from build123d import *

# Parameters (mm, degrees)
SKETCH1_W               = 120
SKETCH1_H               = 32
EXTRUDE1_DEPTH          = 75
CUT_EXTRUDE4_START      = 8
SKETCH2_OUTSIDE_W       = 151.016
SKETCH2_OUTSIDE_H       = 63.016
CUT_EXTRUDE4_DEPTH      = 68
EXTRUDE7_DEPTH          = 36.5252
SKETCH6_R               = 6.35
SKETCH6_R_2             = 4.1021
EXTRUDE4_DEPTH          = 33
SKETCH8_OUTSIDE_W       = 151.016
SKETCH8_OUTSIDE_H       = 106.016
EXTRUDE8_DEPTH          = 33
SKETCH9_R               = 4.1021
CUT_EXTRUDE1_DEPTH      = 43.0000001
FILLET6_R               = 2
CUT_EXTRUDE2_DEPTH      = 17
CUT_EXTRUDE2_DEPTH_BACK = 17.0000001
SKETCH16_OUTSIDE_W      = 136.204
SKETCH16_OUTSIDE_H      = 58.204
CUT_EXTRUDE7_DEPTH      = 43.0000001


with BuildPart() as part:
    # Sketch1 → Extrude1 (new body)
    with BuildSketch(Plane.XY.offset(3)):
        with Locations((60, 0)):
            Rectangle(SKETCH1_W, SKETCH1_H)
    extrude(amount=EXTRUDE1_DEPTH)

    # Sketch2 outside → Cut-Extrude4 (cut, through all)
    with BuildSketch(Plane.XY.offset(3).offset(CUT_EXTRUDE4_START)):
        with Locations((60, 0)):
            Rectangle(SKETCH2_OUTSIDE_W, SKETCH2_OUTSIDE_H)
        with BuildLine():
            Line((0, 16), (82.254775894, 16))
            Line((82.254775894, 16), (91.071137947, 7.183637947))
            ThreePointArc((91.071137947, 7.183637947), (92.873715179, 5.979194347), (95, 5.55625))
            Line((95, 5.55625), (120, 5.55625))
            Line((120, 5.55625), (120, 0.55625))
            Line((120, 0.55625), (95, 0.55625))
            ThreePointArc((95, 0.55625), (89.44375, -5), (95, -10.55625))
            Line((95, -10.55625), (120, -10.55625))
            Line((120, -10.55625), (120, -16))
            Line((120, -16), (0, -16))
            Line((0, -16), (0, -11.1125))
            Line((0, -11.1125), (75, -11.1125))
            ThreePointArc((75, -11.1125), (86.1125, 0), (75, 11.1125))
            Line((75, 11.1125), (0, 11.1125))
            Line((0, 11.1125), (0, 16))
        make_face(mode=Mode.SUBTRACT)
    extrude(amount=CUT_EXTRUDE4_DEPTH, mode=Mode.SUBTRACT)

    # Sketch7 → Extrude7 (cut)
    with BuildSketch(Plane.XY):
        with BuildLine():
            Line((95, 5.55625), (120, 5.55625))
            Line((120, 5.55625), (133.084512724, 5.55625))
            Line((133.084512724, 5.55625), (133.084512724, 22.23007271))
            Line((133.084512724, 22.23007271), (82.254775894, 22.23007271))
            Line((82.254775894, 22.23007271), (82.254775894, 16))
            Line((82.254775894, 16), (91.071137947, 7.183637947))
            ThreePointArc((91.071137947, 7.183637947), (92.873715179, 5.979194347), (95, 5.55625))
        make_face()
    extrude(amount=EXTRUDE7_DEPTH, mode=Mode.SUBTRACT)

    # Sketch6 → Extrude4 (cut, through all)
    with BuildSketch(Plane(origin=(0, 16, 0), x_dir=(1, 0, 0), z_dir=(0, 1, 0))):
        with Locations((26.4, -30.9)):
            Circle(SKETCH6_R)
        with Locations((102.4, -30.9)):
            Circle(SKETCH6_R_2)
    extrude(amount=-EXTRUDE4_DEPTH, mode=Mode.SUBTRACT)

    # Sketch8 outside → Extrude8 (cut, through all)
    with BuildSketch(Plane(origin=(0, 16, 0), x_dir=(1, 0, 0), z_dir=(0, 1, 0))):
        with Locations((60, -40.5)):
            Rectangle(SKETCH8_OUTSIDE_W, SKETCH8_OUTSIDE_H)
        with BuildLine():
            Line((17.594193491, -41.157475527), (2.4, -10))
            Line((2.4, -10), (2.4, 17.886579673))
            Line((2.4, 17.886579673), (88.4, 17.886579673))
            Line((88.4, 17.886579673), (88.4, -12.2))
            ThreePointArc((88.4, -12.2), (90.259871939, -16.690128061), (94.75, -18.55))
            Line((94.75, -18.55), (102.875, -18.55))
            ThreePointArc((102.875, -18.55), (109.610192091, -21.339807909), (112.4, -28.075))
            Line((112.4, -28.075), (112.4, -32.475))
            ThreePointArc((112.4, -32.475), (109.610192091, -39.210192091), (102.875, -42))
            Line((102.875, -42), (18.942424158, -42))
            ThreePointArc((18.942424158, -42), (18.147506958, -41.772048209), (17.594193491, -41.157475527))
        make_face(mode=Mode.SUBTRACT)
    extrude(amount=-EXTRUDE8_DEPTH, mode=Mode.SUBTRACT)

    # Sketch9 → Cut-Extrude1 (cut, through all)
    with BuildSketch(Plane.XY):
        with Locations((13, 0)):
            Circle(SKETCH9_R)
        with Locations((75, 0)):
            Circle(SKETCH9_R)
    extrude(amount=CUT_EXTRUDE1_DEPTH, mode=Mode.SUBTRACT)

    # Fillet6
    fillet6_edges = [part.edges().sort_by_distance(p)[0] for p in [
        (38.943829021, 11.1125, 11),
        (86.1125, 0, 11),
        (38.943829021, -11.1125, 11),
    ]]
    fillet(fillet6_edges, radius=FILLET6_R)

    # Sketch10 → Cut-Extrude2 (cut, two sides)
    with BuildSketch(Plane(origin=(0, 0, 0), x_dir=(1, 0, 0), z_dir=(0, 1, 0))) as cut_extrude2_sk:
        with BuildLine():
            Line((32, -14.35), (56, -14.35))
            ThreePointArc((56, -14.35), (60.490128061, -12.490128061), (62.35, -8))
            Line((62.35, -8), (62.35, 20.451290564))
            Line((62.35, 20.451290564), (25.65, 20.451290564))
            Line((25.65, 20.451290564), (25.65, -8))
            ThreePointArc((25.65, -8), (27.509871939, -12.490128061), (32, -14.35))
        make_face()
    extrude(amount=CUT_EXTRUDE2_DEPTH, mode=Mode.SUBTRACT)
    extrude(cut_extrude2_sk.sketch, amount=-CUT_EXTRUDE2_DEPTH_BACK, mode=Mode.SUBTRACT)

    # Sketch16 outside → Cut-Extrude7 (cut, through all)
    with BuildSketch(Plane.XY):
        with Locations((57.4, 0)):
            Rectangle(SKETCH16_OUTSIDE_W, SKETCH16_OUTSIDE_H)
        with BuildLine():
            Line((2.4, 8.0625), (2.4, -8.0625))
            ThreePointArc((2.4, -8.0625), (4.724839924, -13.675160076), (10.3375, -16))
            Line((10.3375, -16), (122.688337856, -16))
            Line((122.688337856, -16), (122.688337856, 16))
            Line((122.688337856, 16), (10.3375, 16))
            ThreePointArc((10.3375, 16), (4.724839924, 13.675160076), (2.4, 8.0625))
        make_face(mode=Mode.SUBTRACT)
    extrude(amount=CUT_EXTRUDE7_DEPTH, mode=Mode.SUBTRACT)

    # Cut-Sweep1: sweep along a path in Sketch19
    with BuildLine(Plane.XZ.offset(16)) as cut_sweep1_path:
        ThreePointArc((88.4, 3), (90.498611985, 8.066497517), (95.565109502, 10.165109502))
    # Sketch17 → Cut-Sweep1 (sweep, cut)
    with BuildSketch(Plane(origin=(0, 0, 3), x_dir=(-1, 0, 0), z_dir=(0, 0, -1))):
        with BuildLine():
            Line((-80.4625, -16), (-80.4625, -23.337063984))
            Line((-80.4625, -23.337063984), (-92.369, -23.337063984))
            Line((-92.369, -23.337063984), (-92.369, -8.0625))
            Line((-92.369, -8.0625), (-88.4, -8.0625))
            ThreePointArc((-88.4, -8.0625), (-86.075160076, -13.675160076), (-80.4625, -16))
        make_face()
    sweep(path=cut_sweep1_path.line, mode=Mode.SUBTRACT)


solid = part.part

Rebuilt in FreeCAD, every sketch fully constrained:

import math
import FreeCAD as App
import Part
import Sketcher
Q = App.Units.Quantity


def edges_at(feature, points):
    """Names of the edges that pass closest to the given points."""
    edges = feature.Shape.Edges
    near = lambda p: min(range(len(edges)), key=lambda i: edges[i].distToShape(Part.Vertex(*p))[0])
    return sorted({f"Edge{near(p) + 1}" for p in points})

doc = App.newDocument("Part")
body = doc.addObject("PartDesign::Body", "Body")

sketch1 = doc.addObject("Sketcher::SketchObject", "Sketch")
body.addObject(sketch1)
sketch1.AttachmentSupport = (doc.XY_Plane, [""])
sketch1.MapMode = "FlatFace"
sketch1.AttachmentOffset = App.Placement(App.Vector(0, 0, 3), App.Rotation())
sketch1.addGeometry([
    Part.LineSegment(App.Vector(0, 16, 0), App.Vector(0, -16, 0)),
    Part.LineSegment(App.Vector(0, -16, 0), App.Vector(120, -16, 0)),
    Part.LineSegment(App.Vector(120, -16, 0), App.Vector(120, 16, 0)),
    Part.LineSegment(App.Vector(120, 16, 0), App.Vector(0, 16, 0)),
], False)
sketch1.addConstraint([
    Sketcher.Constraint("Coincident", 0, 2, 1, 1),
    Sketcher.Constraint("Coincident", 1, 2, 2, 1),
    Sketcher.Constraint("Coincident", 2, 2, 3, 1),
    Sketcher.Constraint("Coincident", 3, 2, 0, 1),
    Sketcher.Constraint("Vertical", 0),
    Sketcher.Constraint("Horizontal", 1),
    Sketcher.Constraint("Vertical", 2),
    Sketcher.Constraint("Horizontal", 3),
    Sketcher.Constraint("Symmetric", 0, 2, 3, 2, -1, 1),
    Sketcher.Constraint("DistanceX", 1, 1, 1, 2, Q("120 mm")),
    Sketcher.Constraint("DistanceY", 0, 2, 0, 1, Q("32 mm")),
])
pad1 = doc.addObject("PartDesign::Pad", "Pad")
body.addObject(pad1)
pad1.Profile = sketch1
pad1.Length = 75

sketch2 = doc.addObject("Sketcher::SketchObject", "Sketch001")
body.addObject(sketch2)
sketch2.AttachmentSupport = (doc.XY_Plane, [""])
sketch2.MapMode = "FlatFace"
sketch2.AttachmentOffset = App.Placement(App.Vector(0, 0, 11), App.Rotation())
sketch2.addGeometry([
    Part.LineSegment(App.Vector(-15.5, 31.5, 0), App.Vector(-15.5, -31.5, 0)),
    Part.LineSegment(App.Vector(-15.5, -31.5, 0), App.Vector(135.5, -31.5, 0)),
    Part.LineSegment(App.Vector(135.5, -31.5, 0), App.Vector(135.5, 31.5, 0)),
    Part.LineSegment(App.Vector(135.5, 31.5, 0), App.Vector(-15.5, 31.5, 0)),
    Part.LineSegment(App.Vector(0, 11.1, 0), App.Vector(0, 16, 0)),
    Part.LineSegment(App.Vector(0, 16, 0), App.Vector(82.3, 16, 0)),
    Part.LineSegment(App.Vector(82.3, 16, 0), App.Vector(91.1, 7.2, 0)),
    Part.ArcOfCircle(Part.Circle(App.Vector(95, 11.1, 0), App.Vector(0, 0, 1), 5.6), math.radians(-135), math.radians(-90)),
    Part.LineSegment(App.Vector(95, 5.6, 0), App.Vector(120, 5.6, 0)),
    Part.LineSegment(App.Vector(120, 5.6, 0), App.Vector(120, 0.6, 0)),
    Part.LineSegment(App.Vector(120, 0.6, 0), App.Vector(95, 0.6, 0)),
    Part.ArcOfCircle(Part.Circle(App.Vector(95, -5, 0), App.Vector(0, 0, 1), 5.6), math.radians(90), math.radians(270)),
    Part.LineSegment(App.Vector(95, -10.6, 0), App.Vector(120, -10.6, 0)),
    Part.LineSegment(App.Vector(120, -10.6, 0), App.Vector(120, -16, 0)),
    Part.LineSegment(App.Vector(120, -16, 0), App.Vector(0, -16, 0)),
    Part.LineSegment(App.Vector(0, -16, 0), App.Vector(0, -11.1, 0)),
    Part.LineSegment(App.Vector(0, -11.1, 0), App.Vector(75, -11.1, 0)),
    Part.ArcOfCircle(Part.Circle(App.Vector(75, 0, 0), App.Vector(0, 0, 1), 11.1), math.radians(-90), math.radians(90)),
    Part.LineSegment(App.Vector(75, 11.1, 0), App.Vector(0, 11.1, 0)),
], False)
sketch2.addConstraint([
    Sketcher.Constraint("Coincident", 0, 2, 1, 1),
    Sketcher.Constraint("Coincident", 1, 2, 2, 1),
    Sketcher.Constraint("Coincident", 2, 2, 3, 1),
    Sketcher.Constraint("Coincident", 3, 2, 0, 1),
    Sketcher.Constraint("Coincident", 4, 2, 5, 1),
    Sketcher.Constraint("Coincident", 5, 2, 6, 1),
    Sketcher.Constraint("Tangent", 6, 2, 7, 1),
    Sketcher.Constraint("Tangent", 7, 2, 8, 1),
    Sketcher.Constraint("Coincident", 8, 2, 9, 1),
    Sketcher.Constraint("Coincident", 9, 2, 10, 1),
    Sketcher.Constraint("Tangent", 10, 2, 11, 1),
    Sketcher.Constraint("Tangent", 11, 2, 12, 1),
    Sketcher.Constraint("Coincident", 12, 2, 13, 1),
    Sketcher.Constraint("Coincident", 13, 2, 14, 1),
    Sketcher.Constraint("Coincident", 14, 2, 15, 1),
    Sketcher.Constraint("Coincident", 15, 2, 16, 1),
    Sketcher.Constraint("Tangent", 16, 2, 17, 1),
    Sketcher.Constraint("Tangent", 17, 2, 18, 1),
    Sketcher.Constraint("Coincident", 18, 2, 4, 1),
    Sketcher.Constraint("Vertical", 0),
    Sketcher.Constraint("Horizontal", 1),
    Sketcher.Constraint("Vertical", 2),
    Sketcher.Constraint("Horizontal", 3),
    Sketcher.Constraint("Vertical", 4),
    Sketcher.Constraint("Horizontal", 5),
    Sketcher.Constraint("Horizontal", 8),
    Sketcher.Constraint("Vertical", 9),
    Sketcher.Constraint("Horizontal", 10),
    Sketcher.Constraint("Horizontal", 12),
    Sketcher.Constraint("Vertical", 13),
    Sketcher.Constraint("Horizontal", 14),
    Sketcher.Constraint("Vertical", 15),
    Sketcher.Constraint("Horizontal", 16),
    Sketcher.Constraint("Horizontal", 18),
    Sketcher.Constraint("Equal", 7, 11),
    Sketcher.Constraint("Symmetric", 4, 2, 14, 2, -1, 1),
    Sketcher.Constraint("Symmetric", 15, 2, 18, 2, -1),
    Sketcher.Constraint("Horizontal", 7, 3, 17, 2),
    Sketcher.Constraint("Vertical", 7, 3, 11, 3),
    Sketcher.Constraint("Vertical", 9, 2, 12, 2),
    Sketcher.Constraint("DistanceX", 8, 1, 8, 2, Q("25 mm")),
    Sketcher.Constraint("DistanceX", 14, 2, 14, 1, Q("120 mm")),
    Sketcher.Constraint("DistanceX", 16, 1, 16, 2, Q("75 mm")),
    Sketcher.Constraint("DistanceY", 9, 2, 9, 1, Q("5 mm")),
    Sketcher.Constraint("Angle", 6, Q("-45 deg")),
    Sketcher.Constraint("DistanceY", 11, 3, -1, 1, Q("5 mm")),
    Sketcher.Constraint("DistanceY", -1, 1, 4, 2, Q("16 mm")),
    Sketcher.Constraint("Radius", 17, Q("11.1125 mm")),
    Sketcher.Constraint("DistanceX", 1, 1, 1, 2, Q("151.016 mm")),
    Sketcher.Constraint("DistanceY", 0, 2, 0, 1, Q("63.016 mm")),
    Sketcher.Constraint("DistanceX", 0, 2, -1, 1, Q("15.508 mm")),
    Sketcher.Constraint("DistanceY", 0, 2, -1, 1, Q("31.508 mm")),
])
pocket1 = doc.addObject("PartDesign::Pocket", "Pocket")
body.addObject(pocket1)
pocket1.Profile = sketch2
pocket1.Type = "ThroughAll"
pocket1.Reversed = True

sketch3 = doc.addObject("Sketcher::SketchObject", "Sketch002")
body.addObject(sketch3)
sketch3.AttachmentSupport = (doc.XY_Plane, [""])
sketch3.MapMode = "FlatFace"
sketch3.addGeometry([
    Part.LineSegment(App.Vector(95, 5.6, 0), App.Vector(133.1, 5.6, 0)),
    Part.LineSegment(App.Vector(133.1, 5.6, 0), App.Vector(133.1, 22.2, 0)),
    Part.LineSegment(App.Vector(133.1, 22.2, 0), App.Vector(82.3, 22.2, 0)),
    Part.LineSegment(App.Vector(82.3, 22.2, 0), App.Vector(82.3, 16, 0)),
    Part.LineSegment(App.Vector(82.3, 16, 0), App.Vector(91.1, 7.2, 0)),
    Part.ArcOfCircle(Part.Circle(App.Vector(95, 11.1, 0), App.Vector(0, 0, 1), 5.6), math.radians(-135), math.radians(-90)),
], False)
sketch3.addConstraint([
    Sketcher.Constraint("Coincident", 0, 2, 1, 1),
    Sketcher.Constraint("Coincident", 1, 2, 2, 1),
    Sketcher.Constraint("Coincident", 2, 2, 3, 1),
    Sketcher.Constraint("Coincident", 3, 2, 4, 1),
    Sketcher.Constraint("Tangent", 4, 2, 5, 1),
    Sketcher.Constraint("Tangent", 5, 2, 0, 1),
    Sketcher.Constraint("Horizontal", 0),
    Sketcher.Constraint("Vertical", 1),
    Sketcher.Constraint("Horizontal", 2),
    Sketcher.Constraint("Vertical", 3),
    Sketcher.Constraint("Angle", 4, Q("-45 deg")),
    Sketcher.Constraint("DistanceX", -1, 1, 5, 3, Q("95 mm")),
    Sketcher.Constraint("DistanceY", -1, 1, 3, 2, Q("16 mm")),
    Sketcher.Constraint("Radius", 5, Q("5.55625 mm")),
    Sketcher.Constraint("DistanceY", -1, 1, 5, 3, Q("11.1125 mm")),
    Sketcher.Constraint("DistanceX", 0, 1, 0, 2, Q("38.084513 mm")),
    Sketcher.Constraint("DistanceY", 1, 1, 1, 2, Q("16.673823 mm")),
])
pocket2 = doc.addObject("PartDesign::Pocket", "Pocket001")
body.addObject(pocket2)
pocket2.Profile = sketch3
pocket2.Length = 36.5252
pocket2.Reversed = True

sketch4 = doc.addObject("Sketcher::SketchObject", "Sketch003")
body.addObject(sketch4)
sketch4.AttachmentSupport = (doc.XZ_Plane, [""])
sketch4.MapMode = "FlatFace"
sketch4.AttachmentOffset = App.Placement(App.Vector(0, 0, -16), App.Rotation())
sketch4.addGeometry([
    Part.Circle(App.Vector(26.4, 30.9, 0), App.Vector(0, 0, 1), 6.3),
    Part.Circle(App.Vector(102.4, 30.9, 0), App.Vector(0, 0, 1), 4.1),
], False)
sketch4.addConstraint([
    Sketcher.Constraint("Horizontal", 0, 3, 1, 3),
    Sketcher.Constraint("Diameter", 0, Q("12.7 mm")),
    Sketcher.Constraint("DistanceX", 0, 3, 1, 3, Q("76 mm")),
    Sketcher.Constraint("Diameter", 1, Q("8.2042 mm")),
    Sketcher.Constraint("DistanceX", -1, 1, 0, 3, Q("26.4 mm")),
    Sketcher.Constraint("DistanceY", -1, 1, 0, 3, Q("30.9 mm")),
])
pocket3 = doc.addObject("PartDesign::Pocket", "Pocket002")
body.addObject(pocket3)
pocket3.Profile = sketch4
pocket3.Type = "ThroughAll"
pocket3.Reversed = True

sketch5 = doc.addObject("Sketcher::SketchObject", "Sketch004")
body.addObject(sketch5)
sketch5.AttachmentSupport = (doc.XZ_Plane, [""])
sketch5.MapMode = "FlatFace"
sketch5.AttachmentOffset = App.Placement(App.Vector(0, 0, -16), App.Rotation())
sketch5.addGeometry([
    Part.LineSegment(App.Vector(-15.5, -12.5, 0), App.Vector(-15.5, 93.5, 0)),
    Part.LineSegment(App.Vector(-15.5, 93.5, 0), App.Vector(135.5, 93.5, 0)),
    Part.LineSegment(App.Vector(135.5, 93.5, 0), App.Vector(135.5, -12.5, 0)),
    Part.LineSegment(App.Vector(135.5, -12.5, 0), App.Vector(88.4, -12.5, 0)),
    Part.LineSegment(App.Vector(88.4, -12.5, 0), App.Vector(88.4, 12.2, 0)),
    Part.ArcOfCircle(Part.Circle(App.Vector(94.7, 12.2, 0), App.Vector(0, 0, 1), 6.3), math.radians(90), math.radians(180)),
    Part.LineSegment(App.Vector(94.8, 18.6, 0), App.Vector(102.9, 18.6, 0)),
    Part.ArcOfCircle(Part.Circle(App.Vector(102.9, 28.1, 0), App.Vector(0, 0, 1), 9.5), math.radians(-90), math.radians(0)),
    Part.LineSegment(App.Vector(112.4, 28.1, 0), App.Vector(112.4, 32.5, 0)),
    Part.ArcOfCircle(Part.Circle(App.Vector(102.9, 32.5, 0), App.Vector(0, 0, 1), 9.5), math.radians(0), math.radians(90)),
    Part.LineSegment(App.Vector(102.9, 42, 0), App.Vector(18.9, 42, 0)),
    Part.ArcOfCircle(Part.Circle(App.Vector(18.9, 40.5, 0), App.Vector(0, 0, 1), 1.5), math.radians(90), math.radians(154)),
    Part.LineSegment(App.Vector(17.6, 41.2, 0), App.Vector(2.4, 10, 0)),
    Part.LineSegment(App.Vector(2.4, 10, 0), App.Vector(2.4, -12.5, 0)),
    Part.LineSegment(App.Vector(2.4, -12.5, 0), App.Vector(-15.5, -12.5, 0)),
], False)
sketch5.addConstraint([
    Sketcher.Constraint("Coincident", 0, 2, 1, 1),
    Sketcher.Constraint("Coincident", 1, 2, 2, 1),
    Sketcher.Constraint("Coincident", 2, 2, 3, 1),
    Sketcher.Constraint("Coincident", 3, 2, 4, 1),
    Sketcher.Constraint("Tangent", 4, 2, 5, 2),
    Sketcher.Constraint("Tangent", 5, 1, 6, 1),
    Sketcher.Constraint("Tangent", 6, 2, 7, 1),
    Sketcher.Constraint("Tangent", 7, 2, 8, 1),
    Sketcher.Constraint("Tangent", 8, 2, 9, 1),
    Sketcher.Constraint("Tangent", 9, 2, 10, 1),
    Sketcher.Constraint("Tangent", 10, 2, 11, 1),
    Sketcher.Constraint("Tangent", 11, 2, 12, 1),
    Sketcher.Constraint("Coincident", 12, 2, 13, 1),
    Sketcher.Constraint("Coincident", 13, 2, 14, 1),
    Sketcher.Constraint("Coincident", 14, 2, 0, 1),
    Sketcher.Constraint("Vertical", 0),
    Sketcher.Constraint("Horizontal", 1),
    Sketcher.Constraint("Vertical", 2),
    Sketcher.Constraint("Horizontal", 3),
    Sketcher.Constraint("Vertical", 4),
    Sketcher.Constraint("Horizontal", 6),
    Sketcher.Constraint("Vertical", 8),
    Sketcher.Constraint("Horizontal", 10),
    Sketcher.Constraint("Vertical", 13),
    Sketcher.Constraint("Horizontal", 14),
    Sketcher.Constraint("Equal", 7, 9),
    Sketcher.Constraint("Horizontal", 3, 2, 13, 2),
    Sketcher.Constraint("Radius", 11, Q("1.5 mm")),
    Sketcher.Constraint("Radius", 5, Q("6.35 mm")),
    Sketcher.Constraint("DistanceY", 8, 1, 8, 2, Q("4.4 mm")),
    Sketcher.Constraint("DistanceY", -1, 1, 9, 2, Q("42 mm")),
    Sketcher.Constraint("DistanceY", -1, 1, 12, 2, Q("10 mm")),
    Sketcher.Constraint("Radius", 7, Q("9.525 mm")),
    Sketcher.Constraint("DistanceX", 12, 2, 4, 2, Q("86 mm")),
    Sketcher.Constraint("DistanceX", -1, 1, 3, 2, Q("88.4 mm")),
    Sketcher.Constraint("DistanceX", -1, 1, 7, 2, Q("112.4 mm")),
    Sketcher.Constraint("DistanceX", 1, 1, 1, 2, Q("151.016 mm")),
    Sketcher.Constraint("DistanceX", 3, 2, 3, 1, Q("47.108 mm")),
    Sketcher.Constraint("DistanceY", 0, 1, 0, 2, Q("106.016 mm")),
    Sketcher.Constraint("DistanceY", 4, 1, 4, 2, Q("24.708 mm")),
    Sketcher.Constraint("Distance", 12, Q("34.66485 mm")),
])
pocket4 = doc.addObject("PartDesign::Pocket", "Pocket003")
body.addObject(pocket4)
pocket4.Profile = sketch5
pocket4.Type = "ThroughAll"
pocket4.Reversed = True

sketch6 = doc.addObject("Sketcher::SketchObject", "Sketch005")
body.addObject(sketch6)
sketch6.AttachmentSupport = (doc.XY_Plane, [""])
sketch6.MapMode = "FlatFace"
sketch6.addGeometry([
    Part.Circle(App.Vector(13, 0, 0), App.Vector(0, 0, 1), 4.1),
    Part.Circle(App.Vector(75, 0, 0), App.Vector(0, 0, 1), 4.1),
], False)
sketch6.addConstraint([
    Sketcher.Constraint("Equal", 0, 1),
    Sketcher.Constraint("PointOnObject", 0, 3, -1),
    Sketcher.Constraint("PointOnObject", 1, 3, -1),
    Sketcher.Constraint("DistanceX", -1, 1, 0, 3, Q("13 mm")),
    Sketcher.Constraint("DistanceX", -1, 1, 1, 3, Q("75 mm")),
    Sketcher.Constraint("Diameter", 0, Q("8.2042 mm")),
])
pocket5 = doc.addObject("PartDesign::Pocket", "Pocket004")
body.addObject(pocket5)
pocket5.Profile = sketch6
pocket5.Type = "ThroughAll"
pocket5.Reversed = True
doc.recompute()

fillet = doc.addObject("PartDesign::Fillet", "Fillet")
body.addObject(fillet)
fillet.Base = (pocket5, edges_at(pocket5, [(38.944, 11.113, 11), (86.112, 0, 11), (38.944, -11.113, 11)]))
fillet.Radius = 2

sketch7 = doc.addObject("Sketcher::SketchObject", "Sketch006")
body.addObject(sketch7)
sketch7.AttachmentSupport = (doc.XZ_Plane, [""])
sketch7.MapMode = "FlatFace"
sketch7.addGeometry([
    Part.LineSegment(App.Vector(32, 14, 0), App.Vector(56, 14, 0)),
    Part.ArcOfCircle(Part.Circle(App.Vector(56, 8, 0), App.Vector(0, 0, 1), 6), math.radians(0), math.radians(90)),
    Part.LineSegment(App.Vector(62, 8, 0), App.Vector(62, -20, 0)),
    Part.LineSegment(App.Vector(62, -20, 0), App.Vector(26, -20, 0)),
    Part.LineSegment(App.Vector(26, -20, 0), App.Vector(26, 8, 0)),
    Part.ArcOfCircle(Part.Circle(App.Vector(32, 8, 0), App.Vector(0, 0, 1), 6), math.radians(90), math.radians(180)),
], False)
sketch7.addConstraint([
    Sketcher.Constraint("Tangent", 0, 2, 1, 2),
    Sketcher.Constraint("Tangent", 1, 1, 2, 1),
    Sketcher.Constraint("Coincident", 2, 2, 3, 1),
    Sketcher.Constraint("Coincident", 3, 2, 4, 1),
    Sketcher.Constraint("Tangent", 4, 2, 5, 2),
    Sketcher.Constraint("Tangent", 5, 1, 0, 1),
    Sketcher.Constraint("Horizontal", 0),
    Sketcher.Constraint("Vertical", 2),
    Sketcher.Constraint("Horizontal", 3),
    Sketcher.Constraint("Vertical", 4),
    Sketcher.Constraint("Equal", 1, 5),
    Sketcher.Constraint("DistanceX", 0, 1, 0, 2, Q("24 mm")),
    Sketcher.Constraint("Radius", 1, Q("6.35 mm")),
    Sketcher.Constraint("DistanceX", -1, 1, 1, 3, Q("56 mm")),
    Sketcher.Constraint("DistanceY", -1, 1, 1, 3, Q("8 mm")),
    Sketcher.Constraint("DistanceY", 2, 2, 2, 1, Q("28.451291 mm")),
])
pocket6 = doc.addObject("PartDesign::Pocket", "Pocket005")
body.addObject(pocket6)
pocket6.Profile = sketch7
pocket6.Type = "ThroughAll"
pocket6.Midplane = True

sketch8 = doc.addObject("Sketcher::SketchObject", "Sketch007")
body.addObject(sketch8)
sketch8.AttachmentSupport = (doc.XY_Plane, [""])
sketch8.MapMode = "FlatFace"
sketch8.addGeometry([
    Part.LineSegment(App.Vector(-11, 29, 0), App.Vector(-11, -29, 0)),
    Part.LineSegment(App.Vector(-11, -29, 0), App.Vector(126, -29, 0)),
    Part.LineSegment(App.Vector(126, -29, 0), App.Vector(126, 29, 0)),
    Part.LineSegment(App.Vector(126, 29, 0), App.Vector(-11, 29, 0)),
    Part.LineSegment(App.Vector(2, -8, 0), App.Vector(2, 8, 0)),
    Part.ArcOfCircle(Part.Circle(App.Vector(10, 8, 0), App.Vector(0, 0, 1), 8), math.radians(90), math.radians(180)),
    Part.LineSegment(App.Vector(10, 16, 0), App.Vector(123, 16, 0)),
    Part.LineSegment(App.Vector(123, 16, 0), App.Vector(123, -16, 0)),
    Part.LineSegment(App.Vector(123, -16, 0), App.Vector(10, -16, 0)),
    Part.ArcOfCircle(Part.Circle(App.Vector(10, -8, 0), App.Vector(0, 0, 1), 8), math.radians(180), math.radians(270)),
], False)
sketch8.addConstraint([
    Sketcher.Constraint("Coincident", 0, 2, 1, 1),
    Sketcher.Constraint("Coincident", 1, 2, 2, 1),
    Sketcher.Constraint("Coincident", 2, 2, 3, 1),
    Sketcher.Constraint("Coincident", 3, 2, 0, 1),
    Sketcher.Constraint("Tangent", 4, 2, 5, 2),
    Sketcher.Constraint("Tangent", 5, 1, 6, 1),
    Sketcher.Constraint("Coincident", 6, 2, 7, 1),
    Sketcher.Constraint("Coincident", 7, 2, 8, 1),
    Sketcher.Constraint("Tangent", 8, 2, 9, 2),
    Sketcher.Constraint("Tangent", 9, 1, 4, 1),
    Sketcher.Constraint("Vertical", 0),
    Sketcher.Constraint("Horizontal", 1),
    Sketcher.Constraint("Vertical", 2),
    Sketcher.Constraint("Horizontal", 3),
    Sketcher.Constraint("Vertical", 4),
    Sketcher.Constraint("Horizontal", 6),
    Sketcher.Constraint("Vertical", 7),
    Sketcher.Constraint("Horizontal", 8),
    Sketcher.Constraint("Equal", 5, 9),
    Sketcher.Constraint("DistanceY", 7, 2, 7, 1, Q("32 mm")),
    Sketcher.Constraint("DistanceY", -1, 1, 5, 1, Q("16 mm")),
    Sketcher.Constraint("DistanceX", -1, 1, 4, 2, Q("2.4 mm")),
    Sketcher.Constraint("Radius", 5, Q("7.9375 mm")),
    Sketcher.Constraint("DistanceX", 1, 1, 1, 2, Q("136.204 mm")),
    Sketcher.Constraint("DistanceY", 0, 2, 0, 1, Q("58.204 mm")),
    Sketcher.Constraint("DistanceX", 0, 2, -1, 1, Q("10.702 mm")),
    Sketcher.Constraint("DistanceY", 0, 2, -1, 1, Q("29.102 mm")),
    Sketcher.Constraint("DistanceX", 6, 1, 6, 2, Q("112.350838 mm")),
])
pocket7 = doc.addObject("PartDesign::Pocket", "Pocket006")
body.addObject(pocket7)
pocket7.Profile = sketch8
pocket7.Type = "ThroughAll"
pocket7.Reversed = True

sketch9 = doc.addObject("Sketcher::SketchObject", "Sketch008")
body.addObject(sketch9)
sketch9.AttachmentSupport = (doc.XY_Plane, [""])
sketch9.MapMode = "FlatFace"
sketch9.AttachmentOffset = App.Placement(App.Vector(0, 0, 3), App.Rotation())
sketch9.addGeometry([
    Part.LineSegment(App.Vector(80.5, -23.3, 0), App.Vector(80.5, -16, 0)),
    Part.ArcOfCircle(Part.Circle(App.Vector(80.5, -8.1, 0), App.Vector(0, 0, 1), 7.9), math.radians(-90), math.radians(0)),
    Part.LineSegment(App.Vector(88.4, -8.1, 0), App.Vector(92.4, -8.1, 0)),
    Part.LineSegment(App.Vector(92.4, -8.1, 0), App.Vector(92.4, -23.3, 0)),
    Part.LineSegment(App.Vector(92.4, -23.3, 0), App.Vector(80.5, -23.3, 0)),
], False)
sketch9.addConstraint([
    Sketcher.Constraint("Coincident", 0, 2, 1, 1),
    Sketcher.Constraint("Coincident", 1, 2, 2, 1),
    Sketcher.Constraint("Coincident", 2, 2, 3, 1),
    Sketcher.Constraint("Coincident", 3, 2, 4, 1),
    Sketcher.Constraint("Coincident", 4, 2, 0, 1),
    Sketcher.Constraint("Vertical", 0),
    Sketcher.Constraint("Horizontal", 2),
    Sketcher.Constraint("Vertical", 3),
    Sketcher.Constraint("Horizontal", 4),
    Sketcher.Constraint("Vertical", 1, 3, 0, 2),
    Sketcher.Constraint("DistanceY", 0, 2, -1, 1, Q("16 mm")),
    Sketcher.Constraint("DistanceX", -1, 1, 1, 2, Q("88.4 mm")),
    Sketcher.Constraint("Radius", 1, Q("7.9375 mm")),
    Sketcher.Constraint("DistanceX", 2, 1, 2, 2, Q("3.969 mm")),
    Sketcher.Constraint("DistanceY", 1, 2, -1, 1, Q("8.0625 mm")),
    Sketcher.Constraint("DistanceY", 0, 1, 0, 2, Q("7.337064 mm")),
])

sketch10 = doc.addObject("Sketcher::SketchObject", "Sketch009")
body.addObject(sketch10)
sketch10.AttachmentSupport = (doc.XZ_Plane, [""])
sketch10.MapMode = "FlatFace"
sketch10.AttachmentOffset = App.Placement(App.Vector(0, 0, 16), App.Rotation())
sketch10.addGeometry(Part.ArcOfCircle(Part.Circle(App.Vector(96, 3, 0), App.Vector(0, 0, 1), 7), math.radians(90), math.radians(180)), False)
sketch10.addConstraint([
    Sketcher.Constraint("DistanceY", -1, 1, 0, 3, Q("3 mm")),
    Sketcher.Constraint("DistanceY", -1, 1, 0, 2, Q("3 mm")),
    Sketcher.Constraint("DistanceX", -1, 1, 0, 2, Q("88.4 mm")),
    Sketcher.Constraint("Radius", 0, Q("7.16511 mm")),
    Sketcher.Constraint("DistanceX", -1, 1, 0, 1, Q("95.56511 mm")),
])
doc.recompute()

subtractivepipe = doc.addObject("PartDesign::SubtractivePipe", "SubtractivePipe")
body.addObject(subtractivepipe)
subtractivepipe.Profile = sketch9
subtractivepipe.Spine = (sketch10, ["Edge1"])

doc.recompute()
